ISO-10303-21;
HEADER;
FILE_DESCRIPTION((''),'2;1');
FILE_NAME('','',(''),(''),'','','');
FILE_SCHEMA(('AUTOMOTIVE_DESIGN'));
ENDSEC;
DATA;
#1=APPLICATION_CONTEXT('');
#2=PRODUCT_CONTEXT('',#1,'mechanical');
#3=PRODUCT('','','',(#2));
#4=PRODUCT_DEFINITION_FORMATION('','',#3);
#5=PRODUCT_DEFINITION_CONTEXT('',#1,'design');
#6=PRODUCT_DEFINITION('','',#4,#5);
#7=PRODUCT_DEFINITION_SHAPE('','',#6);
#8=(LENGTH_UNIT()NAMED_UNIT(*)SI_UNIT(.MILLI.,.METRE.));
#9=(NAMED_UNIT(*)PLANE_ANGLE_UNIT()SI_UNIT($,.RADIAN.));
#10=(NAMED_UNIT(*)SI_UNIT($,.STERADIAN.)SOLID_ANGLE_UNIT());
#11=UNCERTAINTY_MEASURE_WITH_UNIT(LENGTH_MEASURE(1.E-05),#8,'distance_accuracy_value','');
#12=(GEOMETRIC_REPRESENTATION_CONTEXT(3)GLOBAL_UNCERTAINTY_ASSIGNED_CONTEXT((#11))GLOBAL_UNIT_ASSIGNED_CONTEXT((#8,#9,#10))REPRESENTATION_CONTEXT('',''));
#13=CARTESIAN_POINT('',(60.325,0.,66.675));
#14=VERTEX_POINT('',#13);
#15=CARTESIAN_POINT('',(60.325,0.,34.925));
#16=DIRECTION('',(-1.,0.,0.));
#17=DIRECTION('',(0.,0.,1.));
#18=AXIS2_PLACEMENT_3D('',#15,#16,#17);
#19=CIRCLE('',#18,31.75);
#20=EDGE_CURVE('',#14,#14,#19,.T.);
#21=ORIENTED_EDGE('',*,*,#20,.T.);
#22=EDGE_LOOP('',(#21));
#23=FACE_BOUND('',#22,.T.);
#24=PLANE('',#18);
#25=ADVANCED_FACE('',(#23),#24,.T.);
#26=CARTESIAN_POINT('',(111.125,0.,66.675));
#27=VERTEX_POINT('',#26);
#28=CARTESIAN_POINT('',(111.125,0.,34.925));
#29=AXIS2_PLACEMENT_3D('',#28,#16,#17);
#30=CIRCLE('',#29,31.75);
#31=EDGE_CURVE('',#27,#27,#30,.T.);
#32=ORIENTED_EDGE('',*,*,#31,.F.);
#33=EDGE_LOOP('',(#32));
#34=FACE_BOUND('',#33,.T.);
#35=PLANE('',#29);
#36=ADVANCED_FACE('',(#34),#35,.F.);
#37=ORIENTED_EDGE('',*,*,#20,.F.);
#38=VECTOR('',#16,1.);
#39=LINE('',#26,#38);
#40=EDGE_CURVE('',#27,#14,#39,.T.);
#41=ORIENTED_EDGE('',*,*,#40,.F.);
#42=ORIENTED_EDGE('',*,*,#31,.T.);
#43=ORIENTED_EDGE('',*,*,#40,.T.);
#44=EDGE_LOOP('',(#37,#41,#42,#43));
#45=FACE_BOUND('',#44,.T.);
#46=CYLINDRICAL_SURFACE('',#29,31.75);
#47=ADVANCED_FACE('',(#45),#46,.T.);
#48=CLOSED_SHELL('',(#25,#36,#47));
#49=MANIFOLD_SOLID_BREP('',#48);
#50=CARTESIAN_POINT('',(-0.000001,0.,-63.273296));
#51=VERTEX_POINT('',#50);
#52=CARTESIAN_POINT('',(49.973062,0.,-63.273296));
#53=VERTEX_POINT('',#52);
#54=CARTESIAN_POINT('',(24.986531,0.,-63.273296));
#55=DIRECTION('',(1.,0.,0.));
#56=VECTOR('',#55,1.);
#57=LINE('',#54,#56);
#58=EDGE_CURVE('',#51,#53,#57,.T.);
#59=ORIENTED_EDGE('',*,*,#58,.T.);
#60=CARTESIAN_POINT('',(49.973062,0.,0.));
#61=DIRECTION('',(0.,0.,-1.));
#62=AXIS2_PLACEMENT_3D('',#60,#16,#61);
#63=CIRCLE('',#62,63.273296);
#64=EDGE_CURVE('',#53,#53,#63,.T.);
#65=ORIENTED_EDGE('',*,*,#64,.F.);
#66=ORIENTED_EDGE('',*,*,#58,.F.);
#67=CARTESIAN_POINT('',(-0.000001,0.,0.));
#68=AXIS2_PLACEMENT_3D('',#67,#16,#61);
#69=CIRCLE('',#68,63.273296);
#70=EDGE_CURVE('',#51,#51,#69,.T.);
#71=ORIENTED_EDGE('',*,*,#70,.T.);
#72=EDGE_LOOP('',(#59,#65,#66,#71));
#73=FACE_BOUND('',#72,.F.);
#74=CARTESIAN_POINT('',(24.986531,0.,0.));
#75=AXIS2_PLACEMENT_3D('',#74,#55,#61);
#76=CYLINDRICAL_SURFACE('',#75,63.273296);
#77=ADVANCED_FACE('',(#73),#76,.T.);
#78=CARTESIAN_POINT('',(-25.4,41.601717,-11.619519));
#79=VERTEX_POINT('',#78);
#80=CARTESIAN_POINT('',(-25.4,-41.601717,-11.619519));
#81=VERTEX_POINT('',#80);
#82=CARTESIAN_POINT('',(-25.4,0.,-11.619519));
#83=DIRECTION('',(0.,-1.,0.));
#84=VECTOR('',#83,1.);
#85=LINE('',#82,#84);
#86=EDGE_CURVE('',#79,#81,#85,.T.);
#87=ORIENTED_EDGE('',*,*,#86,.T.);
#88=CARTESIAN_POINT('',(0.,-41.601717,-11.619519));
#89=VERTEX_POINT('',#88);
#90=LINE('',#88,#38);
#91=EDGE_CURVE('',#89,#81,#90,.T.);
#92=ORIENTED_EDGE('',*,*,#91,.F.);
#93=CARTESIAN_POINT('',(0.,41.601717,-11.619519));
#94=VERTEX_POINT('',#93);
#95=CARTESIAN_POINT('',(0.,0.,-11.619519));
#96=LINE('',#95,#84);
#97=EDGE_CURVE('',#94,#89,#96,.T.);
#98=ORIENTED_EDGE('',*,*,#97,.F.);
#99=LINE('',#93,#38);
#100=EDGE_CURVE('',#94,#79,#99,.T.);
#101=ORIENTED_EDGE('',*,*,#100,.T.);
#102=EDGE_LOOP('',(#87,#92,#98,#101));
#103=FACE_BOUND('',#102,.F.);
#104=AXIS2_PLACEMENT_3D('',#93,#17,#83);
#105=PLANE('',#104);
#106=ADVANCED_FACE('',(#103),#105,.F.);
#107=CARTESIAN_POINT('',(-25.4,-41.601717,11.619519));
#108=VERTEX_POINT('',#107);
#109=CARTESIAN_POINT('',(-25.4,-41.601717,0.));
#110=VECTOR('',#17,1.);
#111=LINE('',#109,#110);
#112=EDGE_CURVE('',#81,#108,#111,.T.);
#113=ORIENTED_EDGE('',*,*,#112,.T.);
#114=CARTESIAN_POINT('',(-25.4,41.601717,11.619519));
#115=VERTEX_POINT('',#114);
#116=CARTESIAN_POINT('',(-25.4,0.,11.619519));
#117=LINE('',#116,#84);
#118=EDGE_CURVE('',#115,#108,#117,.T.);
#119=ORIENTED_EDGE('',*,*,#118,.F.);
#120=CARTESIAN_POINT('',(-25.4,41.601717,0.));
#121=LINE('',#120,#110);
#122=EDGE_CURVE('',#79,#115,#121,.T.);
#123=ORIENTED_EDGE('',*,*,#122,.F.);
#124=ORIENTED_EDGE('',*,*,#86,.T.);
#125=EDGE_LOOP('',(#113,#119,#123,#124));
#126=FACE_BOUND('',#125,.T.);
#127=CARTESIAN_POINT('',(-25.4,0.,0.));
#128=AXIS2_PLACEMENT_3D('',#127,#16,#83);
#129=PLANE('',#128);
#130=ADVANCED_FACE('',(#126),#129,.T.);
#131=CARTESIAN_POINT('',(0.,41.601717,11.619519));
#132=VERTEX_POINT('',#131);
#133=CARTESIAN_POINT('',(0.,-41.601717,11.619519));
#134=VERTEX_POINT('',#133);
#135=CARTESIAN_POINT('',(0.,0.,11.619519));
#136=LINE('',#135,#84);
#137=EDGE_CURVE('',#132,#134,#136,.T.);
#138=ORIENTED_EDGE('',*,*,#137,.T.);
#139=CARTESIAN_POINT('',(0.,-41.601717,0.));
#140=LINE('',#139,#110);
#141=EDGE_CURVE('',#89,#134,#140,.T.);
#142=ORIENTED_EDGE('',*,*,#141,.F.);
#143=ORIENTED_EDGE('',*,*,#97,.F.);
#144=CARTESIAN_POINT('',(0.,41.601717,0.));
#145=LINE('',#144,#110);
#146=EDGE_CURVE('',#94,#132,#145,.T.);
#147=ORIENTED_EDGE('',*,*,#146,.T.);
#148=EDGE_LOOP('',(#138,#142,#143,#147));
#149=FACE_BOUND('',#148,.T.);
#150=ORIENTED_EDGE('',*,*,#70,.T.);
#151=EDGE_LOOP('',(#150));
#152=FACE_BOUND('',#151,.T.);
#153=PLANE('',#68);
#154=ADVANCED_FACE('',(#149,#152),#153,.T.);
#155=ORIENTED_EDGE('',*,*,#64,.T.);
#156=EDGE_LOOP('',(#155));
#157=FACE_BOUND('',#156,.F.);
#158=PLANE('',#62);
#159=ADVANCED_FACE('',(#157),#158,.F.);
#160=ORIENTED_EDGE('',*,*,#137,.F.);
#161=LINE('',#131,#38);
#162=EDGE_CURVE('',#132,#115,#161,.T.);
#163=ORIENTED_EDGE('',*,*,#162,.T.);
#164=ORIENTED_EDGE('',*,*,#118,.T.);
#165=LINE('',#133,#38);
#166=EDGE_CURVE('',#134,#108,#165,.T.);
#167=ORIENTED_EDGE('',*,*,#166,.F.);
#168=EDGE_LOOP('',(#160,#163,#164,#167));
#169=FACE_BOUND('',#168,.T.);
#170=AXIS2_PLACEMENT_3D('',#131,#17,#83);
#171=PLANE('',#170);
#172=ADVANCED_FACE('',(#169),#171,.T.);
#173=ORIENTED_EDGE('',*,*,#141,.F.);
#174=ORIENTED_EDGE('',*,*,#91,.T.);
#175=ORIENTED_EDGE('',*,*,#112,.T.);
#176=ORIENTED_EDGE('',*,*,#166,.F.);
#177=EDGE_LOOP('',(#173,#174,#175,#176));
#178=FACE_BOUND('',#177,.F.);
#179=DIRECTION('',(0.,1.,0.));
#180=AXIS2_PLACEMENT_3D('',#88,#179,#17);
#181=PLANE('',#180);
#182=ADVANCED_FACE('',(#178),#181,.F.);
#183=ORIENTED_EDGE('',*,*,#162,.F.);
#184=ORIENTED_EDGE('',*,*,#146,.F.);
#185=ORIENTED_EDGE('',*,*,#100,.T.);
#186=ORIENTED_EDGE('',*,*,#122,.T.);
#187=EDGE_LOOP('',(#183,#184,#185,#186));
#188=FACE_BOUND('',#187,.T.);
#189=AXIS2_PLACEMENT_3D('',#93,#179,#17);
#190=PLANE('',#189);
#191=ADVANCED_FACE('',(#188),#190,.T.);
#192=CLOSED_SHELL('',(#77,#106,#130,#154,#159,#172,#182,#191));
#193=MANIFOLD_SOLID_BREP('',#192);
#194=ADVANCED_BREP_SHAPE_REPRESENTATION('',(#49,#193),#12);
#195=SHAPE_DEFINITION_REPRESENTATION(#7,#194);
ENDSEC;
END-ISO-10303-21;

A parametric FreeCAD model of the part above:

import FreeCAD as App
import Part
import Sketcher
Q = App.Units.Quantity


def add_polygon(sketch, points):
    """Adds a closed chain of lines whose ends are joined by coincident constraints."""
    first, n = sketch.GeometryCount, len(points)
    for a, b in zip(points, points[1:] + points[:1]):
        sketch.addGeometry(Part.LineSegment(App.Vector(*a, 0), App.Vector(*b, 0)), False)
    for i in range(n):
        sketch.addConstraint(Sketcher.Constraint("Coincident", first + i, 2, first + (i + 1) % n, 1))

doc = App.newDocument("Part")
body = doc.addObject("PartDesign::Body", "Body")

# Sketch on XZ plane
sketch1 = body.newObject("Sketcher::SketchObject", "Sketch")
sketch1.AttachmentSupport = (doc.getObject("XZ_Plane"), [""])
sketch1.MapMode = "FlatFace"
add_polygon(sketch1, [(60.325, 34.925), (111.125, 34.925), (111.125, 66.675), (60.325, 66.675)])  # lines 0-3
sketch1.addGeometry(Part.LineSegment(App.Vector(111.125, 34.925, 0), App.Vector(60.325, 34.925, 0)), True)  # axis
sketch1.addConstraint([
    Sketcher.Constraint("Horizontal", 0),
    Sketcher.Constraint("Vertical", 1),
    Sketcher.Constraint("Horizontal", 2),
    Sketcher.Constraint("Vertical", 3),
    Sketcher.Constraint("Horizontal", 4),
    Sketcher.Constraint("Coincident", 4, 1, 0, 2),
    Sketcher.Constraint("Vertical", 2, 2, 4, 2),
    Sketcher.Constraint("DistanceX", 0, 1, 0, 2, Q("2 in")),
    Sketcher.Constraint("DistanceY", 1, 1, 1, 2, Q("1.25 in")),
    Sketcher.Constraint("DistanceX", -1, 1, 0, 2, Q("4.375 in")),
    Sketcher.Constraint("DistanceY", -1, 1, 0, 2, Q("1.375 in")),
])
revolution = body.newObject("PartDesign::Revolution", "Revolution")
revolution.Profile = sketch1
revolution.ReferenceAxis = (sketch1, ["Axis0"])
revolution.Angle = 360
body2 = doc.addObject("PartDesign::Body", "Body001")

# Sketch on XZ plane
sketch2 = body2.newObject("Sketcher::SketchObject", "Sketch001")
sketch2.AttachmentSupport = (doc.getObject("XZ_Plane001"), [""])
sketch2.MapMode = "FlatFace"
add_polygon(sketch2, [(0, 0), (0, -63.273296), (49.973062, -63.273296), (49.973062, 0)])  # lines 0-3
sketch2.addConstraint([
    Sketcher.Constraint("Vertical", 0),
    Sketcher.Constraint("Horizontal", 1),
    Sketcher.Constraint("Vertical", 2),
    Sketcher.Constraint("Horizontal", 3),
    Sketcher.Constraint("Coincident", 3, 2, -1, 1),
    Sketcher.Constraint("DistanceX", 1, 1, 1, 2, Q("49.973063 mm")),
    Sketcher.Constraint("DistanceY", 0, 2, 0, 1, Q("63.273296 mm")),
])
revolution2 = body2.newObject("PartDesign::Revolution", "Revolution001")
revolution2.Profile = sketch2
revolution2.ReferenceAxis = (sketch2, ["H_Axis"])
revolution2.Angle = 360

# Sketch on YZ plane
sketch3 = body2.newObject("Sketcher::SketchObject", "Sketch002")
sketch3.AttachmentSupport = (doc.getObject("YZ_Plane001"), [""])
sketch3.MapMode = "FlatFace"
sketch3.addGeometry(Part.Circle(App.Vector(0, 0, 0), App.Vector(0, 0, 1), 41.479948), False)
sketch3.addConstraint([
    Sketcher.Constraint("Coincident", 0, 3, -1, 1),
    Sketcher.Constraint("Diameter", 0, Q("82.959896 mm")),
])
pad1 = body2.newObject("PartDesign::Pad", "Pad")
pad1.Profile = sketch3
pad1.Type = "UpToLast"

# Sketch on YZ plane
sketch4 = body2.newObject("Sketcher::SketchObject", "Sketch003")
sketch4.AttachmentSupport = (doc.getObject("YZ_Plane001"), [""])
sketch4.MapMode = "FlatFace"
add_polygon(sketch4, [(41.601717, 11.619519), (41.601717, -11.619519), (-41.601717, -11.619519), (-41.601717, 11.619519)])  # lines 0-3
sketch4.addConstraint([
    Sketcher.Constraint("Vertical", 0),
    Sketcher.Constraint("Horizontal", 1),
    Sketcher.Constraint("Vertical", 2),
    Sketcher.Constraint("Horizontal", 3),
    Sketcher.Constraint("Symmetric", 0, 2, 2, 2, -1, 1),
    Sketcher.Constraint("DistanceY", 0, 2, 0, 1, Q("23.239038 mm")),
    Sketcher.Constraint("DistanceX", 1, 2, 1, 1, Q("83.203434 mm")),
])
pad2 = body2.newObject("PartDesign::Pad", "Pad001")
pad2.Profile = sketch4
pad2.Length = Q("1 in")
pad2.Reversed = True

doc.recompute()
